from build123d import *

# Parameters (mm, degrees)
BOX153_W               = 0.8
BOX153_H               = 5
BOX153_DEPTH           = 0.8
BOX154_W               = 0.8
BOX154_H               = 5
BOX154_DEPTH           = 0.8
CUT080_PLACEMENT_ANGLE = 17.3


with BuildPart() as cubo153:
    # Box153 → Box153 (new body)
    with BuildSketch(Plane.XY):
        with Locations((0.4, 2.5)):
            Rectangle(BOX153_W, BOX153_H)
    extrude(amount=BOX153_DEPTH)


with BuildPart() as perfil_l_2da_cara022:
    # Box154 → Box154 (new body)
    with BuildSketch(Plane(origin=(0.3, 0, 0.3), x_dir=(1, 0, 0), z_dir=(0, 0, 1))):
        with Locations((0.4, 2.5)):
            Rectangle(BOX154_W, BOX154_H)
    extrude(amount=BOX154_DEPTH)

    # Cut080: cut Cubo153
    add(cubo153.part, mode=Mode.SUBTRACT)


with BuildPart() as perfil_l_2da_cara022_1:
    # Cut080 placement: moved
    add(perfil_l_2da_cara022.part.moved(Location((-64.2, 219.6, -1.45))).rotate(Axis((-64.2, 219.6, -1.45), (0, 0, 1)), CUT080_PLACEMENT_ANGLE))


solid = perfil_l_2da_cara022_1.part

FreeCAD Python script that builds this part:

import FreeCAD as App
import Part
import Sketcher

V = App.Vector
Q = App.Units.Quantity

doc = App.newDocument("Part")
body = doc.addObject("PartDesign::Body", "Body")

# Sketch on XY plane
sketch1 = doc.addObject("Sketcher::SketchObject", "Sketch")
body.addObject(sketch1)
sketch1.AttachmentSupport = (doc.XY_Plane, [""])
sketch1.MapMode = "FlatFace"
sketch1.addGeometry([
    Part.LineSegment(V(0, 5, 0), V(0, 0, 0)),
    Part.LineSegment(V(0, 0, 0), V(0.8, 0, 0)),
    Part.LineSegment(V(0.8, 0, 0), V(0.8, 5, 0)),
    Part.LineSegment(V(0.8, 5, 0), V(0, 5, 0)),
], False)
sketch1.addConstraint([
    Sketcher.Constraint("Coincident", 0, 2, 1, 1),
    Sketcher.Constraint("Coincident", 1, 2, 2, 1),
    Sketcher.Constraint("Coincident", 2, 2, 3, 1),
    Sketcher.Constraint("Coincident", 3, 2, 0, 1),
    Sketcher.Constraint("Vertical", 0),
    Sketcher.Constraint("Horizontal", 1),
    Sketcher.Constraint("Vertical", 2),
    Sketcher.Constraint("Horizontal", 3),
    Sketcher.Constraint("Coincident", 0, 2, -1, 1),
    Sketcher.Constraint("DistanceY", 0, 2, 0, 1, Q("5 mm")),
    Sketcher.Constraint("DistanceX", 1, 1, 1, 2, Q("0.8 mm")),
])
pad1 = doc.addObject("PartDesign::Pad", "Pad")
body.addObject(pad1)
pad1.Profile = sketch1
pad1.Length = 0.8
body2 = doc.addObject("PartDesign::Body", "Body001")

# Sketch on XY plane
sketch2 = doc.addObject("Sketcher::SketchObject", "Sketch001")
body2.addObject(sketch2)
sketch2.AttachmentSupport = (doc.getObject("XY_Plane001"), [""])
sketch2.MapMode = "FlatFace"
sketch2.AttachmentOffset = App.Placement(V(0, 0, 0.3), App.Rotation())
sketch2.addGeometry([
    Part.LineSegment(V(0.3, 5, 0), V(0.3, 0, 0)),
    Part.LineSegment(V(0.3, 0, 0), V(1.1, 0, 0)),
    Part.LineSegment(V(1.1, 0, 0), V(1.1, 5, 0)),
    Part.LineSegment(V(1.1, 5, 0), V(0.3, 5, 0)),
], False)
sketch2.addConstraint([
    Sketcher.Constraint("Coincident", 0, 2, 1, 1),
    Sketcher.Constraint("Coincident", 1, 2, 2, 1),
    Sketcher.Constraint("Coincident", 2, 2, 3, 1),
    Sketcher.Constraint("Coincident", 3, 2, 0, 1),
    Sketcher.Constraint("Vertical", 0),
    Sketcher.Constraint("Horizontal", 1),
    Sketcher.Constraint("Vertical", 2),
    Sketcher.Constraint("Horizontal", 3),
    Sketcher.Constraint("PointOnObject", 0, 2, -1),
    Sketcher.Constraint("DistanceY", 0, 2, 0, 1, Q("5 mm")),
    Sketcher.Constraint("DistanceX", 1, 1, 1, 2, Q("0.8 mm")),
    Sketcher.Constraint("DistanceX", -1, 1, 0, 2, Q("0.3 mm")),
])
pad2 = doc.addObject("PartDesign::Pad", "Pad001")
body2.addObject(pad2)
pad2.Profile = sketch2
pad2.Length = 0.8
doc.recompute()

boolean = doc.addObject("PartDesign::Boolean", "Boolean")
body2.addObject(boolean)
boolean.Type = "Cut"
boolean.addObjects([body])
body3 = doc.addObject("PartDesign::Body", "Body002")
doc.recompute()

body2.Placement = App.Placement(V(-64.2, 219.6, -1.45), App.Rotation(V(0, 0, 1), 17.3))
boolean2 = doc.addObject("PartDesign::Boolean", "Boolean001")
body3.addObject(boolean2)
boolean2.Type = "Fuse"
boolean2.addObjects([body2])

doc.recompute()
